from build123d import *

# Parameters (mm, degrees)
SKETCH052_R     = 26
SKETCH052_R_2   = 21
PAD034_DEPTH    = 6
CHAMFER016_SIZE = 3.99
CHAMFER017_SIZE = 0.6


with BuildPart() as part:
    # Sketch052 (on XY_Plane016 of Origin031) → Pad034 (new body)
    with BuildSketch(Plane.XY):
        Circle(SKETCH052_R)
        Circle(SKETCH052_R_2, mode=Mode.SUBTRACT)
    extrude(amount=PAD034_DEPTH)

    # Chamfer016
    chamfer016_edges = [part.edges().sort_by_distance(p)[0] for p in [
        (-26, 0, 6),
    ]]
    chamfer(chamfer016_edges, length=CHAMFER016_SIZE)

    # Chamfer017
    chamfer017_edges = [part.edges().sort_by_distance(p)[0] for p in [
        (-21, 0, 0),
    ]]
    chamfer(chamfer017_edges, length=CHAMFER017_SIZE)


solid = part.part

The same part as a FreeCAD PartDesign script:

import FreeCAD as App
import Part
import Sketcher

V = App.Vector


def edges_at(feature, points):
    """Names of the edges that pass closest to the given points."""
    edges = feature.Shape.Edges
    near = lambda p: min(range(len(edges)), key=lambda i: edges[i].distToShape(Part.Vertex(*p))[0])
    return sorted({f"Edge{near(p) + 1}" for p in points})

doc = App.newDocument("Part")
body = doc.addObject("PartDesign::Body", "Body")

sketch1 = body.newObject("Sketcher::SketchObject", "Sketch")
sketch1.AttachmentSupport = (doc.getObject("XY_Plane"), [""])
sketch1.MapMode = "FlatFace"
sketch1.addGeometry(Part.Circle(V(0, 0, 0), V(0, 0, 1), 26), False)
sketch1.addGeometry(Part.Circle(V(0, 0, 0), V(0, 0, 1), 21), False)
sketch1.addConstraint(Sketcher.Constraint("Coincident", 0, 3, -1, 1))
sketch1.addConstraint(Sketcher.Constraint("Coincident", 1, 3, -1, 1))
sketch1.addConstraint(Sketcher.Constraint("Diameter", 0, 52.0))
sketch1.addConstraint(Sketcher.Constraint("Diameter", 1, 42.0))
pad1 = body.newObject("PartDesign::Pad", "Pad")
pad1.Profile = sketch1
pad1.Length = 6
doc.recompute()

chamfer = body.newObject("PartDesign::Chamfer", "Chamfer")
chamfer.Base = (pad1, edges_at(pad1, [(-26, 0, 6)]))
chamfer.Size = 3.99
doc.recompute()

chamfer2 = body.newObject("PartDesign::Chamfer", "Chamfer001")
chamfer2.Base = (chamfer, edges_at(chamfer, [(-21, 0, 0)]))
chamfer2.Size = 0.6

doc.recompute()
